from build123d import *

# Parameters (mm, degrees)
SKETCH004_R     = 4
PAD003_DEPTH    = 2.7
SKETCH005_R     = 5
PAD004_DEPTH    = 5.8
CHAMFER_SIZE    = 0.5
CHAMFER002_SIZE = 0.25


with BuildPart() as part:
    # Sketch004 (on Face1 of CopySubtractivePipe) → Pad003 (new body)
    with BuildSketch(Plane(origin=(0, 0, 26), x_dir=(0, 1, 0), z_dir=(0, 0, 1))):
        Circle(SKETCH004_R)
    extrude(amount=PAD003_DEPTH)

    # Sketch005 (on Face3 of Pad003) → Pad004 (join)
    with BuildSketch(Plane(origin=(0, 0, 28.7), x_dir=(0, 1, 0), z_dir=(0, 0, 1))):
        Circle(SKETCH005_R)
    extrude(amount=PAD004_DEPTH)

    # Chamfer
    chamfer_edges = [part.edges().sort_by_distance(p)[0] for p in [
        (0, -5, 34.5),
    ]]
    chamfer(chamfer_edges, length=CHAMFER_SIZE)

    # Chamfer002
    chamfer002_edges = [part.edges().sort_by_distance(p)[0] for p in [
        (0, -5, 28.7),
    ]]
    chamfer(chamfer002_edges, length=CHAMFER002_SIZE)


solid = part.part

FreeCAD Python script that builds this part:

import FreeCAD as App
import Part
import Sketcher
from FreeCAD import Vector


def edges_at(feature, points):
    """Names of the edges that pass closest to the given points."""
    edges = feature.Shape.Edges
    near = lambda p: min(range(len(edges)), key=lambda i: edges[i].distToShape(Part.Vertex(*p))[0])
    return sorted({f"Edge{near(p) + 1}" for p in points})

doc = App.newDocument("Part")
params = doc.addObject("Spreadsheet::Sheet", "Params")
for row, (alias, value) in enumerate([
    ("sketch1_diameter", "8 mm"),
    ("pad1_length", "2.7 mm"),
    ("sketch2_diameter", "10 mm"),
    ("pad2_length", "5.8 mm"),
    ("chamfer_size", "0.5 mm"),
    ("chamfer2_size", "0.25 mm"),
], start=1):
    params.set(f"A{row}", alias)
    params.set(f"B{row}", "=" + value)
    params.setAlias(f"B{row}", alias)

body = doc.addObject("PartDesign::Body", "Body")

# Sketch on XY plane
sketch1 = doc.addObject("Sketcher::SketchObject", "Sketch")
body.addObject(sketch1)
sketch1.AttachmentSupport = (doc.XY_Plane, [""])
sketch1.MapMode = "FlatFace"
sketch1.AttachmentOffset = App.Placement(Vector(0, 0, 26), App.Rotation())
sketch1.addGeometry(Part.Circle(Vector(0, 0, 0), Vector(0, 0, 1), 4), False)
sketch1.addConstraint([
    Sketcher.Constraint("Coincident", 0, 3, -1, 1),
    Sketcher.Constraint("Diameter", 0, 8.0),
])
sketch1.setExpression("Constraints[1]", "Params.sketch1_diameter")
pad1 = doc.addObject("PartDesign::Pad", "Pad")
body.addObject(pad1)
pad1.Profile = sketch1
pad1.setExpression("Length", "Params.pad1_length")

# Sketch on XY plane
sketch2 = doc.addObject("Sketcher::SketchObject", "Sketch001")
body.addObject(sketch2)
sketch2.AttachmentSupport = (doc.XY_Plane, [""])
sketch2.MapMode = "FlatFace"
sketch2.AttachmentOffset = App.Placement(Vector(0, 0, 28.7), App.Rotation())
sketch2.addGeometry(Part.Circle(Vector(0, 0, 0), Vector(0, 0, 1), 5), False)
sketch2.addConstraint([
    Sketcher.Constraint("Coincident", 0, 3, -1, 1),
    Sketcher.Constraint("Diameter", 0, 10.0),
])
sketch2.setExpression("Constraints[1]", "Params.sketch2_diameter")
pad2 = doc.addObject("PartDesign::Pad", "Pad001")
body.addObject(pad2)
pad2.Profile = sketch2
pad2.setExpression("Length", "Params.pad2_length")
doc.recompute()

chamfer = doc.addObject("PartDesign::Chamfer", "Chamfer")
body.addObject(chamfer)
chamfer.Base = (pad2, edges_at(pad2, [(0, -5, 34.5)]))
chamfer.setExpression("Size", "Params.chamfer_size")
doc.recompute()

chamfer2 = doc.addObject("PartDesign::Chamfer", "Chamfer001")
body.addObject(chamfer2)
chamfer2.Base = (chamfer, edges_at(chamfer, [(0, -5, 28.7)]))
chamfer2.setExpression("Size", "Params.chamfer2_size")

doc.recompute()
